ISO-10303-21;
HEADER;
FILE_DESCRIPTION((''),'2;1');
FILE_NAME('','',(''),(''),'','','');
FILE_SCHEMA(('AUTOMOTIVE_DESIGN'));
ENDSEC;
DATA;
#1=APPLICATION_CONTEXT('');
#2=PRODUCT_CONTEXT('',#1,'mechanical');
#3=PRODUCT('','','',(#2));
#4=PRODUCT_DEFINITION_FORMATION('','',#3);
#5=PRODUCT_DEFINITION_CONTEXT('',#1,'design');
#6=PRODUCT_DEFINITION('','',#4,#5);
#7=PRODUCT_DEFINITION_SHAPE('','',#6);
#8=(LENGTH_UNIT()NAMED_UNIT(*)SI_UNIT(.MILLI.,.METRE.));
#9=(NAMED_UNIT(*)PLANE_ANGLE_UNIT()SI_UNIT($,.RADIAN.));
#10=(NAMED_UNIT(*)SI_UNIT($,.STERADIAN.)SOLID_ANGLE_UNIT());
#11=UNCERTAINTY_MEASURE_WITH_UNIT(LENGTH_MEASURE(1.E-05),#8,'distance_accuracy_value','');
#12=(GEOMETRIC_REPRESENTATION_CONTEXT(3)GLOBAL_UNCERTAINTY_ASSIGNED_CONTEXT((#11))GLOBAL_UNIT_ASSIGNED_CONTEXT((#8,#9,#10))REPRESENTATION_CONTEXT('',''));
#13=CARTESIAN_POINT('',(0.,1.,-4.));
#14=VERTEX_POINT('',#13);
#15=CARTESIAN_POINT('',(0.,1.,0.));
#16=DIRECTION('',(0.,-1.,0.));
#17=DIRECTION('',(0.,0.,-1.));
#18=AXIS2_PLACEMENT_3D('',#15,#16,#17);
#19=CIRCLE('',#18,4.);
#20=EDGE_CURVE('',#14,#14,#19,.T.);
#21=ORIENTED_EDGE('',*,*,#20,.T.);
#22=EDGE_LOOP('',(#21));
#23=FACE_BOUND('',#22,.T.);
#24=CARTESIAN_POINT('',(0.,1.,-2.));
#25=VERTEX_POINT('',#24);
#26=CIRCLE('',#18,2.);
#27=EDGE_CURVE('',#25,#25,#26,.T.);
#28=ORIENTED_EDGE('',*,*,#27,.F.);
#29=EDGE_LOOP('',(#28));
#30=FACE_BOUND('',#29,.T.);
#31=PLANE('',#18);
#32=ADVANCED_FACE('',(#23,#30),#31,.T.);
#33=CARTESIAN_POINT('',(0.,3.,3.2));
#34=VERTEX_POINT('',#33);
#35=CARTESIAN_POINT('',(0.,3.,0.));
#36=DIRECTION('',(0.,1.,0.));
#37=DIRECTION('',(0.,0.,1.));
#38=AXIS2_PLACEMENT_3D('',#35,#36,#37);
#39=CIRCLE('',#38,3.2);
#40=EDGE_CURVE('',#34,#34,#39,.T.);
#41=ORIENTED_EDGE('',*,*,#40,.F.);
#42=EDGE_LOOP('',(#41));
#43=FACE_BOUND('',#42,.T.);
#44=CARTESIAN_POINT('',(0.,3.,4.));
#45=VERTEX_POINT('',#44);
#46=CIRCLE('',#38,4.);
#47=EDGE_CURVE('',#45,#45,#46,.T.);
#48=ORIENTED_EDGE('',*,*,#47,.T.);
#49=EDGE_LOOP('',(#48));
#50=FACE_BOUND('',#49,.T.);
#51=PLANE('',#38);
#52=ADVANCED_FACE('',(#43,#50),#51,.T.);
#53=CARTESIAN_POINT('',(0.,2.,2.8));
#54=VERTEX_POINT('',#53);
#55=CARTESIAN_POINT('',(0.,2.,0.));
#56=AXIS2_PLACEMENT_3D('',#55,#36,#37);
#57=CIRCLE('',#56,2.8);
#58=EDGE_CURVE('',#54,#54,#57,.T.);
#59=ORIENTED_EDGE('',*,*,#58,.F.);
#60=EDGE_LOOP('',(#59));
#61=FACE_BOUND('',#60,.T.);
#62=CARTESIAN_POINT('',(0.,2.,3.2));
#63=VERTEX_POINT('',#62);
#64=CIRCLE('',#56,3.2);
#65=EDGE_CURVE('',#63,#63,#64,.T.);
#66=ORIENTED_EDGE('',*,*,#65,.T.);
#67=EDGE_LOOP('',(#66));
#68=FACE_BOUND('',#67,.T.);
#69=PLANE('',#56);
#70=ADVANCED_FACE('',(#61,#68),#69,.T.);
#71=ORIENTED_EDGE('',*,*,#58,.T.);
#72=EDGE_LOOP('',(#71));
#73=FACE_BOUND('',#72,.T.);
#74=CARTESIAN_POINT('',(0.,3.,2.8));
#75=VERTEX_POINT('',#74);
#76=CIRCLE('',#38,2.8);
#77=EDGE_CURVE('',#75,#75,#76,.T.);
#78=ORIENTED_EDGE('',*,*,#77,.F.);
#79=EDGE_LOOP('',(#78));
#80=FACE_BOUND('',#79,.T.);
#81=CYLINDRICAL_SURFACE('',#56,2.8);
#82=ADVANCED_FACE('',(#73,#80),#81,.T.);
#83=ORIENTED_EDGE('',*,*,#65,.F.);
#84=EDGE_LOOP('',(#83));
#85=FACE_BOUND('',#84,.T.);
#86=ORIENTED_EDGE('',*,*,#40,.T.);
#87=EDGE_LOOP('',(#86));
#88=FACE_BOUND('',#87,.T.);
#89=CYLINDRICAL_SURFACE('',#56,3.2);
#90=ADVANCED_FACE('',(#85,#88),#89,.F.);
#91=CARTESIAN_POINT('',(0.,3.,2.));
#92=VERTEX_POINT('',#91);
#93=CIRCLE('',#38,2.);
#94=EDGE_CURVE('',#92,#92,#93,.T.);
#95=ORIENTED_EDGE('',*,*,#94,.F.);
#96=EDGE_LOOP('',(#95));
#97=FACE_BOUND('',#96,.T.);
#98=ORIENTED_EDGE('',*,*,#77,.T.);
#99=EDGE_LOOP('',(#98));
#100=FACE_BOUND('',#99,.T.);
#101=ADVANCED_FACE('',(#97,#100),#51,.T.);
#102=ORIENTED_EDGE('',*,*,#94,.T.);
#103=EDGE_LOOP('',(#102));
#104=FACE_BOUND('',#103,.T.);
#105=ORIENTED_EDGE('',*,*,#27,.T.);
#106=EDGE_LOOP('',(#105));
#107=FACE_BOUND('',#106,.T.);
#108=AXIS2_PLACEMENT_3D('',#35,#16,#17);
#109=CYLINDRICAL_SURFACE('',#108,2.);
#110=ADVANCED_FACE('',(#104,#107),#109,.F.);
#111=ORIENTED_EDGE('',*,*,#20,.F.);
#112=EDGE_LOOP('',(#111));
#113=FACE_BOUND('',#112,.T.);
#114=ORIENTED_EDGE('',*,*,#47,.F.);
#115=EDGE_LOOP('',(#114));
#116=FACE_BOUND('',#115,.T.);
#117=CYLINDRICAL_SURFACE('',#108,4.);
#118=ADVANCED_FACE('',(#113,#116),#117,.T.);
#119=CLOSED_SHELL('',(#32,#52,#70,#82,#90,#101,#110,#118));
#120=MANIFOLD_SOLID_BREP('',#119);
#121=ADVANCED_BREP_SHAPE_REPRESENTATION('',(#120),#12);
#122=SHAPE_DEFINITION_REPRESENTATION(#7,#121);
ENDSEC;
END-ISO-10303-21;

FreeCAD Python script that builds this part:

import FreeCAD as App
import Part
import Sketcher

V = App.Vector

doc = App.newDocument("Part")
body = doc.addObject("PartDesign::Body", "Body")

# Sketch on XZ plane
sketch1 = doc.addObject("Sketcher::SketchObject", "Sketch")
body.addObject(sketch1)
sketch1.AttachmentSupport = (doc.XZ_Plane, [""])
sketch1.MapMode = "FlatFace"
sketch1.addGeometry([
    Part.Circle(V(0, 0, 0), V(0, 0, 1), 4),
    Part.Circle(V(0, 0, 0), V(0, 0, 1), 2),
], False)
sketch1.addConstraint([
    Sketcher.Constraint("Coincident", 0, 3, -1, 1),
    Sketcher.Constraint("Coincident", 1, 3, -1, 1),
    Sketcher.Constraint("Diameter", 0, 8.0),
    Sketcher.Constraint("Diameter", 1, 4.0),
])
pad1 = doc.addObject("PartDesign::Pad", "Pad")
body.addObject(pad1)
pad1.Profile = sketch1
pad1.Length = 3
pad1.Reversed = True

# Sketch on XZ plane
sketch2 = doc.addObject("Sketcher::SketchObject", "Sketch001")
body.addObject(sketch2)
sketch2.AttachmentSupport = (doc.XZ_Plane, [""])
sketch2.MapMode = "FlatFace"
sketch2.AttachmentOffset = App.Placement(V(0, 0, -3), App.Rotation())
sketch2.addGeometry([
    Part.Circle(V(0, 0, 0), V(0, 0, 1), 3.2),
    Part.Circle(V(0, 0, 0), V(0, 0, 1), 2.8),
], False)
sketch2.addConstraint([
    Sketcher.Constraint("Coincident", 0, 3, -1, 1),
    Sketcher.Constraint("Coincident", 1, 3, -1, 1),
    Sketcher.Constraint("Diameter", 0, 6.4),
    Sketcher.Constraint("Diameter", 1, 5.6),
])
pocket1 = doc.addObject("PartDesign::Pocket", "Pocket")
body.addObject(pocket1)
pocket1.Profile = sketch2
pocket1.Length = 1
pocket1.Reversed = True

# Sketch on XZ plane
sketch3 = doc.addObject("Sketcher::SketchObject", "Sketch002")
body.addObject(sketch3)
sketch3.AttachmentSupport = (doc.XZ_Plane, [""])
sketch3.MapMode = "FlatFace"
sketch3.addGeometry([
    Part.Circle(V(0, 0, 0), V(0, 0, 1), 4),
    Part.Circle(V(0, 0, 0), V(0, 0, 1), 2),
], False)
sketch3.addConstraint([
    Sketcher.Constraint("Coincident", 0, 3, -1, 1),
    Sketcher.Constraint("Coincident", 1, 3, -1, 1),
    Sketcher.Constraint("Diameter", 0, 8.0),
    Sketcher.Constraint("Diameter", 1, 4.0),
])
pocket2 = doc.addObject("PartDesign::Pocket", "Pocket001")
body.addObject(pocket2)
pocket2.Profile = sketch3
pocket2.Length = 1

doc.recompute()
